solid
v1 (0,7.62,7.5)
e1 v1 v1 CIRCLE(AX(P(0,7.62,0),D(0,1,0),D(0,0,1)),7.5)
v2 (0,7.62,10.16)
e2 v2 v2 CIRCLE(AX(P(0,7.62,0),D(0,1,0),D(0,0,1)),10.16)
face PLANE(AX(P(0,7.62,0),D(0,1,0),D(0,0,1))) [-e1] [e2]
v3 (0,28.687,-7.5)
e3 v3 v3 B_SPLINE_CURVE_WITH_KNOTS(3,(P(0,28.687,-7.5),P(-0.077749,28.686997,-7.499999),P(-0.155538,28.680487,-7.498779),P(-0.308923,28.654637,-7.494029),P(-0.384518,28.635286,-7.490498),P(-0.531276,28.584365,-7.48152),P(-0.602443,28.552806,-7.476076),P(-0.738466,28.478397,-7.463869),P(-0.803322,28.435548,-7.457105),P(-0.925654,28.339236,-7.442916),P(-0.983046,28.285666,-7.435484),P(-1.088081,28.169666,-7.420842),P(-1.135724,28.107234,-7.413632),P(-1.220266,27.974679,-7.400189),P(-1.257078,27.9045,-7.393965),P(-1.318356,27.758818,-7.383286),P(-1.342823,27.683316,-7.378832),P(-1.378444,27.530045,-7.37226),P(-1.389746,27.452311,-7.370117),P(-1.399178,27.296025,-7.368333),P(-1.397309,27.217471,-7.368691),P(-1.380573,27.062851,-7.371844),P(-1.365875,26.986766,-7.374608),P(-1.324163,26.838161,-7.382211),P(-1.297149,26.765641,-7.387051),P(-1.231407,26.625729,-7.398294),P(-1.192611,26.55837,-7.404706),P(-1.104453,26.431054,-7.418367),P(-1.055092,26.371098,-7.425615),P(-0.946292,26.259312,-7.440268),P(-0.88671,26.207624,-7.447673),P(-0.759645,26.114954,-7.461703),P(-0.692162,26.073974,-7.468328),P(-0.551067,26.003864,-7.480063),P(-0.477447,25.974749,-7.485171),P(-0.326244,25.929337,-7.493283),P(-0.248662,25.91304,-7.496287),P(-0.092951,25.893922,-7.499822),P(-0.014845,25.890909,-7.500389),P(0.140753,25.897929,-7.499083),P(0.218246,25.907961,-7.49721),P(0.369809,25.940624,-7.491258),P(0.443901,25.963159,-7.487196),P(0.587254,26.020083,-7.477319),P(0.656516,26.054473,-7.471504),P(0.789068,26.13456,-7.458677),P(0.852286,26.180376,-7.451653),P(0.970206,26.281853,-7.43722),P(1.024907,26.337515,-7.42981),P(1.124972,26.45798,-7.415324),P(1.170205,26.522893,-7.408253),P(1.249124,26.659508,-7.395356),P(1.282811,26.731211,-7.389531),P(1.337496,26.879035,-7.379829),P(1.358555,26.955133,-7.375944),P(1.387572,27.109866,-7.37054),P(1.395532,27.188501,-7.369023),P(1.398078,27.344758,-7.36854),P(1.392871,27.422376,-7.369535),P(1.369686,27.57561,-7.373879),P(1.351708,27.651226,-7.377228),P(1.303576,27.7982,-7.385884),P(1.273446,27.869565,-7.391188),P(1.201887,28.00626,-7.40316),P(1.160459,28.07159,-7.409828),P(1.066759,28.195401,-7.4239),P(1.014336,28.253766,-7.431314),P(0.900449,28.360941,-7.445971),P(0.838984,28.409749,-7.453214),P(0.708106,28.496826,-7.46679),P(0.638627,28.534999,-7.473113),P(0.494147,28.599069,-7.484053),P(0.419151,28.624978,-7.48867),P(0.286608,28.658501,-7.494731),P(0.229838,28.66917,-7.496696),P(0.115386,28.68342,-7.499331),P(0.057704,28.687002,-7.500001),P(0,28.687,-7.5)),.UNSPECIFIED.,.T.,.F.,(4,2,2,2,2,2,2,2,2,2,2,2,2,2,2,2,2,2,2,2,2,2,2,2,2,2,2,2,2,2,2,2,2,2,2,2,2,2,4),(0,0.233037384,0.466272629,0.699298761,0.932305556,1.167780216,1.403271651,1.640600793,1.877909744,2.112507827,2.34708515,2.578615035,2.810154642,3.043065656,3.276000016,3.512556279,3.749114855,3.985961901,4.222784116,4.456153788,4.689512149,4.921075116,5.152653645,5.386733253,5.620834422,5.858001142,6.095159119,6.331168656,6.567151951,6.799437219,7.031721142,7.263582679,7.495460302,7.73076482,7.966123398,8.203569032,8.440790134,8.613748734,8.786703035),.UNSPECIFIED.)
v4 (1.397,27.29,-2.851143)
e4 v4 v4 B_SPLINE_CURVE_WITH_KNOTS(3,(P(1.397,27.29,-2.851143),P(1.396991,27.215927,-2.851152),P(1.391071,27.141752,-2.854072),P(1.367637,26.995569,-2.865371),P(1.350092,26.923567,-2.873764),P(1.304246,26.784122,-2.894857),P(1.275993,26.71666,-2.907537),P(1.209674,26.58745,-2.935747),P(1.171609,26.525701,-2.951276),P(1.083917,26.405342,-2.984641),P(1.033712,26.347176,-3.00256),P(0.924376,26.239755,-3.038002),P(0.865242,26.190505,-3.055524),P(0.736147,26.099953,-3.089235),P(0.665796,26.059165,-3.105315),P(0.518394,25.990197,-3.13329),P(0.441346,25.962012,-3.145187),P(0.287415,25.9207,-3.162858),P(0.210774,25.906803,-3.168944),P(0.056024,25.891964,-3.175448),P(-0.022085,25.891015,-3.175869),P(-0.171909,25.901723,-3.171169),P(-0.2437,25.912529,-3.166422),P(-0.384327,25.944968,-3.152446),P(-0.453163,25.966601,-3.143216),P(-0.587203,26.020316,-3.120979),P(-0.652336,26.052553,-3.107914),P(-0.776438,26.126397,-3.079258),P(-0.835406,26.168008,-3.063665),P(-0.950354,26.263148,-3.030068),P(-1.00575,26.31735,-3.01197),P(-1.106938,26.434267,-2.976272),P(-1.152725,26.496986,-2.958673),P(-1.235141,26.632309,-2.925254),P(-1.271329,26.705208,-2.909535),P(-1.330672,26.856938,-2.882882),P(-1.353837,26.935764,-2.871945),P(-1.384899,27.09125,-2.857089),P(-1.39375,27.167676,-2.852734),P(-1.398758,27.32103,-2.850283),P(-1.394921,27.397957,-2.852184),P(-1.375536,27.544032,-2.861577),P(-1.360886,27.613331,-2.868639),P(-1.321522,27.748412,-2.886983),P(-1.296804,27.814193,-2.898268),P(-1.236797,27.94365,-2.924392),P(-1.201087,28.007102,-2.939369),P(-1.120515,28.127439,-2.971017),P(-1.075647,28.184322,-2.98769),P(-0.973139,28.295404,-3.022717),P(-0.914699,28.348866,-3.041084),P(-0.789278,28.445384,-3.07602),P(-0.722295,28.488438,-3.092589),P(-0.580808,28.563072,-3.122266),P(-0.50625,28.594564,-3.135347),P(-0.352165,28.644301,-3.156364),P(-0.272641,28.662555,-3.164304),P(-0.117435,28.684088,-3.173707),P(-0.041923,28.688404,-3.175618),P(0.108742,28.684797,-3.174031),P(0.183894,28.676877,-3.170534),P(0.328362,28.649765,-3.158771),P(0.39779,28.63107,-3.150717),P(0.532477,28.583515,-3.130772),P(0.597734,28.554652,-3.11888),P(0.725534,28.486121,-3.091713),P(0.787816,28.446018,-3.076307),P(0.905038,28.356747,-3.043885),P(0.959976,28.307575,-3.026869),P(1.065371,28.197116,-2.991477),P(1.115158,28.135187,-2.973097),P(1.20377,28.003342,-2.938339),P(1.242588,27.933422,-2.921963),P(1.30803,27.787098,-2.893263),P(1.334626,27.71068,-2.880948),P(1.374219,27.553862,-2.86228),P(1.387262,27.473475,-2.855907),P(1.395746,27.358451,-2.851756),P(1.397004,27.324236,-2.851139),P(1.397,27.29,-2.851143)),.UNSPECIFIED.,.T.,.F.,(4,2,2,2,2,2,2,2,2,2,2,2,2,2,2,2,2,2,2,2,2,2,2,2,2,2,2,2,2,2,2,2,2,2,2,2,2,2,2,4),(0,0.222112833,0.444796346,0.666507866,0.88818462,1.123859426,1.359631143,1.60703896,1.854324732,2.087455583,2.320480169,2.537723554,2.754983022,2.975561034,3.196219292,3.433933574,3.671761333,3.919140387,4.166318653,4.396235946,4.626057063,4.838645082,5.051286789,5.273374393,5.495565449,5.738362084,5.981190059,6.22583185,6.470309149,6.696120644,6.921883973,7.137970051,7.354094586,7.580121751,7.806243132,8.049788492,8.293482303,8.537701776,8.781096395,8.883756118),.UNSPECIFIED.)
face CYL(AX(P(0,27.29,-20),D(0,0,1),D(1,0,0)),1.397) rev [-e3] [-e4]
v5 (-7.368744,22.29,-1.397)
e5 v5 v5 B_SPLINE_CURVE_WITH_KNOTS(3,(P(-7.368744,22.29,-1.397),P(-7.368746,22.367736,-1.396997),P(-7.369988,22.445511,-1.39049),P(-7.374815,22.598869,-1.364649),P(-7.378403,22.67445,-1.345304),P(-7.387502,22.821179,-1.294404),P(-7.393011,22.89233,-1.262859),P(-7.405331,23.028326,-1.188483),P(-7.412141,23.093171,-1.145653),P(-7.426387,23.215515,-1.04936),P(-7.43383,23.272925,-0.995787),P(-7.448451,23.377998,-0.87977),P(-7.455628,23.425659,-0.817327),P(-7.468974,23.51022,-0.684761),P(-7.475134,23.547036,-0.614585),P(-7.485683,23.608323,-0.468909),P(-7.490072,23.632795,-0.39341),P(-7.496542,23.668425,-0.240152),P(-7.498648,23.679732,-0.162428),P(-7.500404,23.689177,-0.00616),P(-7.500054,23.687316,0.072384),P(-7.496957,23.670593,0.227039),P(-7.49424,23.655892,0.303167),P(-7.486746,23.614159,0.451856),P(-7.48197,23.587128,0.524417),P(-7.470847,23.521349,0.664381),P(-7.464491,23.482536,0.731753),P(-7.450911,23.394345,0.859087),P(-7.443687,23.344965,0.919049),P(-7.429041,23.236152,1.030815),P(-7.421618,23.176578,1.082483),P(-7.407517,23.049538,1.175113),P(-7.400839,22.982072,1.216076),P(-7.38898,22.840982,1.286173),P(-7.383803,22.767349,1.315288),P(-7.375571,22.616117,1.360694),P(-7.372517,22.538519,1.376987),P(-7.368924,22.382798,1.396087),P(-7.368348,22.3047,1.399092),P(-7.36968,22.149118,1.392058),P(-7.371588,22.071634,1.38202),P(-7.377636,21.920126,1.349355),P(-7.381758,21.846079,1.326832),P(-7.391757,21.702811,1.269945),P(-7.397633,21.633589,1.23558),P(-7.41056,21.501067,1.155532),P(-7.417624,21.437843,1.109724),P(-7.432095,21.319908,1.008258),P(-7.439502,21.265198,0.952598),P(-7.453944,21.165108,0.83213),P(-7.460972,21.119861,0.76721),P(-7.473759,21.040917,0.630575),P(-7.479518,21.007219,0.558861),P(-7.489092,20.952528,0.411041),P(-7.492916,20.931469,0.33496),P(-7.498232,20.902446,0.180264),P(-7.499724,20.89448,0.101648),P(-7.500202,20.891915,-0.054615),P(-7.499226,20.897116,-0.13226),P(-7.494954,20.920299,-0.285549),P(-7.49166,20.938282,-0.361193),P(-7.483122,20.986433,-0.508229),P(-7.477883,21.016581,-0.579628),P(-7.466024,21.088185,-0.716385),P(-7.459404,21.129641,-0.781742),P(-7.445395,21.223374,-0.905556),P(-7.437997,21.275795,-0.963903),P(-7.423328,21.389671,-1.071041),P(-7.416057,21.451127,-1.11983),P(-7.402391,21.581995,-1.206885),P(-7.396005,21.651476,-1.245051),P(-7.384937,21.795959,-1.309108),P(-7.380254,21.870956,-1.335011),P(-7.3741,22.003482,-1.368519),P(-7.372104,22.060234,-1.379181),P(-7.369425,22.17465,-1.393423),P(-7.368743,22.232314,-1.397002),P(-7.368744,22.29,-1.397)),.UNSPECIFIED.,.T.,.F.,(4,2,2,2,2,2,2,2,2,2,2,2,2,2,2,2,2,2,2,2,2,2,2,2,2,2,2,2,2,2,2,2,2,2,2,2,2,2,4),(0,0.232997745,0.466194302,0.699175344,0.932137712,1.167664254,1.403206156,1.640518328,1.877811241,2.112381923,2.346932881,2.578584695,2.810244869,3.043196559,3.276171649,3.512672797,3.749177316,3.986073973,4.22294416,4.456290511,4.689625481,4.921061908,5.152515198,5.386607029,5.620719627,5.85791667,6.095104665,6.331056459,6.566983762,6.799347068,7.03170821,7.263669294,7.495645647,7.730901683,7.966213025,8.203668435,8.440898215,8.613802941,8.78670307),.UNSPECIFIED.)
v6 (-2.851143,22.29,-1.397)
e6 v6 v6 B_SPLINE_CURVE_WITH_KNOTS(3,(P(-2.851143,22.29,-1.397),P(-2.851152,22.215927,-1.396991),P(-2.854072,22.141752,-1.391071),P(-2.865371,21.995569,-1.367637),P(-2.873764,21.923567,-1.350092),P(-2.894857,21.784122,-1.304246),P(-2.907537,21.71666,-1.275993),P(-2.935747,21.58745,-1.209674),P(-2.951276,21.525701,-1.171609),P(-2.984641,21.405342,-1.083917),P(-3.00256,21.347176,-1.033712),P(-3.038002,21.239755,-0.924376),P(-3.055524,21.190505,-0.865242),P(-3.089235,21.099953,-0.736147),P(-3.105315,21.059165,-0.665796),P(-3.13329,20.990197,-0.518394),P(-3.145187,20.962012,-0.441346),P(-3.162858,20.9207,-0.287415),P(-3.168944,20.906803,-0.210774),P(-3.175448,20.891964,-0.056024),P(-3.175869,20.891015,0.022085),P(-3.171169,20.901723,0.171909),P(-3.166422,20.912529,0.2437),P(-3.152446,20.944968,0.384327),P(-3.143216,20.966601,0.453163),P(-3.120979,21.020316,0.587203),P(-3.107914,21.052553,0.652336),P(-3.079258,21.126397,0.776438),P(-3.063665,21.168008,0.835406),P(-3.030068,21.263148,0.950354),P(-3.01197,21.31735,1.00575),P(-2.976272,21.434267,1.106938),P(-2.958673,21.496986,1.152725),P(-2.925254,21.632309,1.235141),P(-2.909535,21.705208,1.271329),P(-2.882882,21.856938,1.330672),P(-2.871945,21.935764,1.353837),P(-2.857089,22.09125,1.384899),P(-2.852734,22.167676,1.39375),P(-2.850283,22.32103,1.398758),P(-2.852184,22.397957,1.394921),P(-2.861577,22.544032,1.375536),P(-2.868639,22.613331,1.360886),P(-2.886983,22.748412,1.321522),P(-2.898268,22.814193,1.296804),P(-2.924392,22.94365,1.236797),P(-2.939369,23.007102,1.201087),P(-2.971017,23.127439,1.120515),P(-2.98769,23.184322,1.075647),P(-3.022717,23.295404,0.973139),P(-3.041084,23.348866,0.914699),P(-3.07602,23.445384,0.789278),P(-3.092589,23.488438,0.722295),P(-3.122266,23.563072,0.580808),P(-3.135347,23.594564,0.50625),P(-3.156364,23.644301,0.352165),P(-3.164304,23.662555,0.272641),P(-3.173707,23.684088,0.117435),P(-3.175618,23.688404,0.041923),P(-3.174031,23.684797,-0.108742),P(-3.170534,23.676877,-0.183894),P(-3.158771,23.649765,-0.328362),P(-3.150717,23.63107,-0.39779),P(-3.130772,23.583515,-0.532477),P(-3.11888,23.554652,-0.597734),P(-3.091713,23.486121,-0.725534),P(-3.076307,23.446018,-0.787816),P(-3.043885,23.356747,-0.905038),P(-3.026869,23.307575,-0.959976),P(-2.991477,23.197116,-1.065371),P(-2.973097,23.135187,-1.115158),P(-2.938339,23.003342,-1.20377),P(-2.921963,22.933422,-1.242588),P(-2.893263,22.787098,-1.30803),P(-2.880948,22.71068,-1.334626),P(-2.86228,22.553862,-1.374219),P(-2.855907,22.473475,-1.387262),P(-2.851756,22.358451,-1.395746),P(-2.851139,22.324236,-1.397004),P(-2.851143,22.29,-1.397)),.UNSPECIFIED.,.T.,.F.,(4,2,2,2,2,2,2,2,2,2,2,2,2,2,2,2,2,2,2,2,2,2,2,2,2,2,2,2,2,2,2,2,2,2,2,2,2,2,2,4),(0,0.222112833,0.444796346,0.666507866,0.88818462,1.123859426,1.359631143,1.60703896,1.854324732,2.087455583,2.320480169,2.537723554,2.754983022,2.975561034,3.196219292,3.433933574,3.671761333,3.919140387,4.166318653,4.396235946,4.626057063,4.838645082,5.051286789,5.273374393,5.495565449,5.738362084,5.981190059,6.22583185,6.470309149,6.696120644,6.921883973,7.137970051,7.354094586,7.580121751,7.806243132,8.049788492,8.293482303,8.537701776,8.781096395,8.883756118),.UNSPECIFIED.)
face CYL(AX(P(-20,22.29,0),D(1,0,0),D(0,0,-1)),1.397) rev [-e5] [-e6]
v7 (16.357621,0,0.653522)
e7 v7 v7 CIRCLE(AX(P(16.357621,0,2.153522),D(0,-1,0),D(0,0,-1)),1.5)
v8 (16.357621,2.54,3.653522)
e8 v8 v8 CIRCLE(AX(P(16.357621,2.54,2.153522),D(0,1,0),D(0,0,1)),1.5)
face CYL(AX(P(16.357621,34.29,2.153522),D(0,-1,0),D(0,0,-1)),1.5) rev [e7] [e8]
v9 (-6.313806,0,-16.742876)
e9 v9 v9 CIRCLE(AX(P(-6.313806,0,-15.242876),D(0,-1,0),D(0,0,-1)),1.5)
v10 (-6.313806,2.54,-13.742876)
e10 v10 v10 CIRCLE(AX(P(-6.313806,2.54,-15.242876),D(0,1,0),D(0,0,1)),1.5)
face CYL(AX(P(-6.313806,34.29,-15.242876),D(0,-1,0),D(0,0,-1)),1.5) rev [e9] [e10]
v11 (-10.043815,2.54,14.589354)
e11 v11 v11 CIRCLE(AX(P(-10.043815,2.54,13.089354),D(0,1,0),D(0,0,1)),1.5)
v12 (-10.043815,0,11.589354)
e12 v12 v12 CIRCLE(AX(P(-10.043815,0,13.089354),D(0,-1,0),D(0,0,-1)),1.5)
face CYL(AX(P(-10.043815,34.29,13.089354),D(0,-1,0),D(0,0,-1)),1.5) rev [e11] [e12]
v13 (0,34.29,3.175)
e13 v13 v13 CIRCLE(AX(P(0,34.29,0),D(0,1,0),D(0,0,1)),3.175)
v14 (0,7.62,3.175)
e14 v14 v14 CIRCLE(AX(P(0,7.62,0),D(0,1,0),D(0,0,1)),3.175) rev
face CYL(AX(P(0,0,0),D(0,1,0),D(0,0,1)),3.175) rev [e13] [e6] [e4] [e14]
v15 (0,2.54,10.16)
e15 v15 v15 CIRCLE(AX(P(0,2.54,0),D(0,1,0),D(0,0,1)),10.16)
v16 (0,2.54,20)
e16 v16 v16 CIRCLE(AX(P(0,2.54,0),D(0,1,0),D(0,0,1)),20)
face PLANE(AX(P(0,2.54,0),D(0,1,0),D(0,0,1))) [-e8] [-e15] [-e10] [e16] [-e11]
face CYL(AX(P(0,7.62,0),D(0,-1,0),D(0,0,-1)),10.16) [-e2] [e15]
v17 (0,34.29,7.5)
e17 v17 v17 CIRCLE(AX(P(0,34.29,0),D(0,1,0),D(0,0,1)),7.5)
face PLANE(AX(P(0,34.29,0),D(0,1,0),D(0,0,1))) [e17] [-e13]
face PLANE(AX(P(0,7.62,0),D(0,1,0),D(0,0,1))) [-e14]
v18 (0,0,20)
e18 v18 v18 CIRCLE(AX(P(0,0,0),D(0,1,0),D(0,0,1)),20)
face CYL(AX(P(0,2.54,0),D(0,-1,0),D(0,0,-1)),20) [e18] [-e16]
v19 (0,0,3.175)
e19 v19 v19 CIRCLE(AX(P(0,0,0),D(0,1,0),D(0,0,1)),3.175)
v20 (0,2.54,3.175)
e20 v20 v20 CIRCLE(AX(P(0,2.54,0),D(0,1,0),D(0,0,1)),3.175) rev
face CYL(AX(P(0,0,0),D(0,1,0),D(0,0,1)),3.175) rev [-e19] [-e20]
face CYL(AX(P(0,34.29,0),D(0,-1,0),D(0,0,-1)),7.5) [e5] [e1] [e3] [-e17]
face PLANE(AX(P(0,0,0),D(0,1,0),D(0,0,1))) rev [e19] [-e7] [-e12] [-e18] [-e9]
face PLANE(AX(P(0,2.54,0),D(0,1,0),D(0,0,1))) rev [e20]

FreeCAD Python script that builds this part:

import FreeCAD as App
import Part
import Sketcher

V = App.Vector
Q = App.Units.Quantity

doc = App.newDocument("Part")
body = doc.addObject("PartDesign::Body", "Body")

# Sketch on XZ plane
sketch1 = doc.addObject("Sketcher::SketchObject", "Sketch")
body.addObject(sketch1)
sketch1.AttachmentSupport = (doc.XZ_Plane, [""])
sketch1.MapMode = "FlatFace"
sketch1.addGeometry(Part.Circle(V(0, 0, 0), V(0, 0, 1), 20), False)
sketch1.addConstraint([
    Sketcher.Constraint("Coincident", 0, 3, -1, 1),
    Sketcher.Constraint("Diameter", 0, 40.0),
])
pad1 = doc.addObject("PartDesign::Pad", "Pad")
body.addObject(pad1)
pad1.Profile = sketch1
pad1.Length = Q("0.1 in")
pad1.Reversed = True

# Sketch on XZ plane
sketch2 = doc.addObject("Sketcher::SketchObject", "Sketch001")
body.addObject(sketch2)
sketch2.AttachmentSupport = (doc.XZ_Plane, [""])
sketch2.MapMode = "FlatFace"
sketch2.AttachmentOffset = App.Placement(V(0, 0, -0.1 * 25.4), App.Rotation())
sketch2.addGeometry(Part.Circle(V(0, 0, 0), V(0, 0, 1), 7), False)
sketch2.addConstraint([
    Sketcher.Constraint("Coincident", 0, 3, -1, 1),
    Sketcher.Constraint("Diameter", 0, 15.0),
])
pad2 = doc.addObject("PartDesign::Pad", "Pad001")
body.addObject(pad2)
pad2.Profile = sketch2
pad2.Length = Q("1.25 in")
pad2.Reversed = True

# Sketch on XZ plane
sketch3 = doc.addObject("Sketcher::SketchObject", "Sketch002")
body.addObject(sketch3)
sketch3.AttachmentSupport = (doc.XZ_Plane, [""])
sketch3.MapMode = "FlatFace"
sketch3.addGeometry([
    Part.Circle(V(-6.3, -15.2, 0), V(0, 0, 1), 1.5),
    Part.Circle(V(-10, 13.1, 0), V(0, 0, 1), 1.5),
    Part.Circle(V(16.4, 2.2, 0), V(0, 0, 1), 1.5),
], False)
sketch3.addConstraint([
    Sketcher.Constraint("Equal", 0, 1),
    Sketcher.Constraint("Equal", 1, 2),
    Sketcher.Constraint("Diameter", 0, 3.0),
    Sketcher.Constraint("DistanceX", -1, 1, 2, 3, 16.357621),
    Sketcher.Constraint("DistanceY", -1, 1, 2, 3, 2.153522),
    Sketcher.Constraint("DistanceX", 1, 3, 0, 3, 3.730009),
    Sketcher.Constraint("DistanceY", 0, 3, 1, 3, 28.33223),
    Sketcher.Constraint("DistanceX", 0, 3, -1, 1, 6.313806),
    Sketcher.Constraint("DistanceY", 0, 3, -1, 1, 15.242876),
])
pocket1 = doc.addObject("PartDesign::Pocket", "Pocket")
body.addObject(pocket1)
pocket1.Profile = sketch3
pocket1.Type = "ThroughAll"

# Sketch on XZ plane
sketch4 = doc.addObject("Sketcher::SketchObject", "Sketch003")
body.addObject(sketch4)
sketch4.AttachmentSupport = (doc.XZ_Plane, [""])
sketch4.MapMode = "FlatFace"
sketch4.AttachmentOffset = App.Placement(V(0, 0, -1.35 * 25.4), App.Rotation())
sketch4.addGeometry(Part.Circle(V(0, 0, 0), V(0, 0, 1), 3.2), False)
sketch4.addConstraint([
    Sketcher.Constraint("Coincident", 0, 3, -1, 1),
    Sketcher.Constraint("Diameter", 0, Q("0.25 in")),
])
pocket2 = doc.addObject("PartDesign::Pocket", "Pocket001")
body.addObject(pocket2)
pocket2.Profile = sketch4
pocket2.Type = "ThroughAll"
pocket2.Reversed = True

# Sketch on YZ plane
sketch5 = doc.addObject("Sketcher::SketchObject", "Sketch004")
body.addObject(sketch5)
sketch5.AttachmentSupport = (doc.YZ_Plane, [""])
sketch5.MapMode = "FlatFace"
sketch5.addGeometry(Part.Circle(V(22.3, 0, 0), V(0, 0, 1), 1.4), False)
sketch5.addConstraint([
    Sketcher.Constraint("PointOnObject", 0, 3, -1),
    Sketcher.Constraint("Diameter", 0, Q("0.11 in")),
    Sketcher.Constraint("DistanceX", -1, 1, 0, 3, 22.29),
])
pocket3 = doc.addObject("PartDesign::Pocket", "Pocket002")
body.addObject(pocket3)
pocket3.Profile = sketch5
pocket3.Type = "ThroughAll"

# Sketch on XY plane
sketch6 = doc.addObject("Sketcher::SketchObject", "Sketch005")
body.addObject(sketch6)
sketch6.AttachmentSupport = (doc.XY_Plane, [""])
sketch6.MapMode = "FlatFace"
sketch6.addGeometry(Part.Circle(V(0, 27.3, 0), V(0, 0, 1), 1.4), False)
sketch6.addConstraint([
    Sketcher.Constraint("PointOnObject", 0, 3, -2),
    Sketcher.Constraint("Diameter", 0, Q("0.11 in")),
    Sketcher.Constraint("DistanceY", -1, 1, 0, 3, 27.29),
])
pocket4 = doc.addObject("PartDesign::Pocket", "Pocket003")
body.addObject(pocket4)
pocket4.Profile = sketch6
pocket4.Type = "ThroughAll"

# Sketch on XZ plane
sketch7 = doc.addObject("Sketcher::SketchObject", "Sketch006")
body.addObject(sketch7)
sketch7.AttachmentSupport = (doc.XZ_Plane, [""])
sketch7.MapMode = "FlatFace"
sketch7.AttachmentOffset = App.Placement(V(0, 0, -0.1 * 25.4), App.Rotation())
sketch7.addGeometry(Part.Circle(V(0, 0, 0), V(0, 0, 1), 10), False)
sketch7.addConstraint([
    Sketcher.Constraint("Coincident", 0, 3, -1, 1),
    Sketcher.Constraint("Diameter", 0, Q("0.8 in")),
])
pad3 = doc.addObject("PartDesign::Pad", "Pad002")
body.addObject(pad3)
pad3.Profile = sketch7
pad3.Length = Q("0.2 in")
pad3.Reversed = True

doc.recompute()
